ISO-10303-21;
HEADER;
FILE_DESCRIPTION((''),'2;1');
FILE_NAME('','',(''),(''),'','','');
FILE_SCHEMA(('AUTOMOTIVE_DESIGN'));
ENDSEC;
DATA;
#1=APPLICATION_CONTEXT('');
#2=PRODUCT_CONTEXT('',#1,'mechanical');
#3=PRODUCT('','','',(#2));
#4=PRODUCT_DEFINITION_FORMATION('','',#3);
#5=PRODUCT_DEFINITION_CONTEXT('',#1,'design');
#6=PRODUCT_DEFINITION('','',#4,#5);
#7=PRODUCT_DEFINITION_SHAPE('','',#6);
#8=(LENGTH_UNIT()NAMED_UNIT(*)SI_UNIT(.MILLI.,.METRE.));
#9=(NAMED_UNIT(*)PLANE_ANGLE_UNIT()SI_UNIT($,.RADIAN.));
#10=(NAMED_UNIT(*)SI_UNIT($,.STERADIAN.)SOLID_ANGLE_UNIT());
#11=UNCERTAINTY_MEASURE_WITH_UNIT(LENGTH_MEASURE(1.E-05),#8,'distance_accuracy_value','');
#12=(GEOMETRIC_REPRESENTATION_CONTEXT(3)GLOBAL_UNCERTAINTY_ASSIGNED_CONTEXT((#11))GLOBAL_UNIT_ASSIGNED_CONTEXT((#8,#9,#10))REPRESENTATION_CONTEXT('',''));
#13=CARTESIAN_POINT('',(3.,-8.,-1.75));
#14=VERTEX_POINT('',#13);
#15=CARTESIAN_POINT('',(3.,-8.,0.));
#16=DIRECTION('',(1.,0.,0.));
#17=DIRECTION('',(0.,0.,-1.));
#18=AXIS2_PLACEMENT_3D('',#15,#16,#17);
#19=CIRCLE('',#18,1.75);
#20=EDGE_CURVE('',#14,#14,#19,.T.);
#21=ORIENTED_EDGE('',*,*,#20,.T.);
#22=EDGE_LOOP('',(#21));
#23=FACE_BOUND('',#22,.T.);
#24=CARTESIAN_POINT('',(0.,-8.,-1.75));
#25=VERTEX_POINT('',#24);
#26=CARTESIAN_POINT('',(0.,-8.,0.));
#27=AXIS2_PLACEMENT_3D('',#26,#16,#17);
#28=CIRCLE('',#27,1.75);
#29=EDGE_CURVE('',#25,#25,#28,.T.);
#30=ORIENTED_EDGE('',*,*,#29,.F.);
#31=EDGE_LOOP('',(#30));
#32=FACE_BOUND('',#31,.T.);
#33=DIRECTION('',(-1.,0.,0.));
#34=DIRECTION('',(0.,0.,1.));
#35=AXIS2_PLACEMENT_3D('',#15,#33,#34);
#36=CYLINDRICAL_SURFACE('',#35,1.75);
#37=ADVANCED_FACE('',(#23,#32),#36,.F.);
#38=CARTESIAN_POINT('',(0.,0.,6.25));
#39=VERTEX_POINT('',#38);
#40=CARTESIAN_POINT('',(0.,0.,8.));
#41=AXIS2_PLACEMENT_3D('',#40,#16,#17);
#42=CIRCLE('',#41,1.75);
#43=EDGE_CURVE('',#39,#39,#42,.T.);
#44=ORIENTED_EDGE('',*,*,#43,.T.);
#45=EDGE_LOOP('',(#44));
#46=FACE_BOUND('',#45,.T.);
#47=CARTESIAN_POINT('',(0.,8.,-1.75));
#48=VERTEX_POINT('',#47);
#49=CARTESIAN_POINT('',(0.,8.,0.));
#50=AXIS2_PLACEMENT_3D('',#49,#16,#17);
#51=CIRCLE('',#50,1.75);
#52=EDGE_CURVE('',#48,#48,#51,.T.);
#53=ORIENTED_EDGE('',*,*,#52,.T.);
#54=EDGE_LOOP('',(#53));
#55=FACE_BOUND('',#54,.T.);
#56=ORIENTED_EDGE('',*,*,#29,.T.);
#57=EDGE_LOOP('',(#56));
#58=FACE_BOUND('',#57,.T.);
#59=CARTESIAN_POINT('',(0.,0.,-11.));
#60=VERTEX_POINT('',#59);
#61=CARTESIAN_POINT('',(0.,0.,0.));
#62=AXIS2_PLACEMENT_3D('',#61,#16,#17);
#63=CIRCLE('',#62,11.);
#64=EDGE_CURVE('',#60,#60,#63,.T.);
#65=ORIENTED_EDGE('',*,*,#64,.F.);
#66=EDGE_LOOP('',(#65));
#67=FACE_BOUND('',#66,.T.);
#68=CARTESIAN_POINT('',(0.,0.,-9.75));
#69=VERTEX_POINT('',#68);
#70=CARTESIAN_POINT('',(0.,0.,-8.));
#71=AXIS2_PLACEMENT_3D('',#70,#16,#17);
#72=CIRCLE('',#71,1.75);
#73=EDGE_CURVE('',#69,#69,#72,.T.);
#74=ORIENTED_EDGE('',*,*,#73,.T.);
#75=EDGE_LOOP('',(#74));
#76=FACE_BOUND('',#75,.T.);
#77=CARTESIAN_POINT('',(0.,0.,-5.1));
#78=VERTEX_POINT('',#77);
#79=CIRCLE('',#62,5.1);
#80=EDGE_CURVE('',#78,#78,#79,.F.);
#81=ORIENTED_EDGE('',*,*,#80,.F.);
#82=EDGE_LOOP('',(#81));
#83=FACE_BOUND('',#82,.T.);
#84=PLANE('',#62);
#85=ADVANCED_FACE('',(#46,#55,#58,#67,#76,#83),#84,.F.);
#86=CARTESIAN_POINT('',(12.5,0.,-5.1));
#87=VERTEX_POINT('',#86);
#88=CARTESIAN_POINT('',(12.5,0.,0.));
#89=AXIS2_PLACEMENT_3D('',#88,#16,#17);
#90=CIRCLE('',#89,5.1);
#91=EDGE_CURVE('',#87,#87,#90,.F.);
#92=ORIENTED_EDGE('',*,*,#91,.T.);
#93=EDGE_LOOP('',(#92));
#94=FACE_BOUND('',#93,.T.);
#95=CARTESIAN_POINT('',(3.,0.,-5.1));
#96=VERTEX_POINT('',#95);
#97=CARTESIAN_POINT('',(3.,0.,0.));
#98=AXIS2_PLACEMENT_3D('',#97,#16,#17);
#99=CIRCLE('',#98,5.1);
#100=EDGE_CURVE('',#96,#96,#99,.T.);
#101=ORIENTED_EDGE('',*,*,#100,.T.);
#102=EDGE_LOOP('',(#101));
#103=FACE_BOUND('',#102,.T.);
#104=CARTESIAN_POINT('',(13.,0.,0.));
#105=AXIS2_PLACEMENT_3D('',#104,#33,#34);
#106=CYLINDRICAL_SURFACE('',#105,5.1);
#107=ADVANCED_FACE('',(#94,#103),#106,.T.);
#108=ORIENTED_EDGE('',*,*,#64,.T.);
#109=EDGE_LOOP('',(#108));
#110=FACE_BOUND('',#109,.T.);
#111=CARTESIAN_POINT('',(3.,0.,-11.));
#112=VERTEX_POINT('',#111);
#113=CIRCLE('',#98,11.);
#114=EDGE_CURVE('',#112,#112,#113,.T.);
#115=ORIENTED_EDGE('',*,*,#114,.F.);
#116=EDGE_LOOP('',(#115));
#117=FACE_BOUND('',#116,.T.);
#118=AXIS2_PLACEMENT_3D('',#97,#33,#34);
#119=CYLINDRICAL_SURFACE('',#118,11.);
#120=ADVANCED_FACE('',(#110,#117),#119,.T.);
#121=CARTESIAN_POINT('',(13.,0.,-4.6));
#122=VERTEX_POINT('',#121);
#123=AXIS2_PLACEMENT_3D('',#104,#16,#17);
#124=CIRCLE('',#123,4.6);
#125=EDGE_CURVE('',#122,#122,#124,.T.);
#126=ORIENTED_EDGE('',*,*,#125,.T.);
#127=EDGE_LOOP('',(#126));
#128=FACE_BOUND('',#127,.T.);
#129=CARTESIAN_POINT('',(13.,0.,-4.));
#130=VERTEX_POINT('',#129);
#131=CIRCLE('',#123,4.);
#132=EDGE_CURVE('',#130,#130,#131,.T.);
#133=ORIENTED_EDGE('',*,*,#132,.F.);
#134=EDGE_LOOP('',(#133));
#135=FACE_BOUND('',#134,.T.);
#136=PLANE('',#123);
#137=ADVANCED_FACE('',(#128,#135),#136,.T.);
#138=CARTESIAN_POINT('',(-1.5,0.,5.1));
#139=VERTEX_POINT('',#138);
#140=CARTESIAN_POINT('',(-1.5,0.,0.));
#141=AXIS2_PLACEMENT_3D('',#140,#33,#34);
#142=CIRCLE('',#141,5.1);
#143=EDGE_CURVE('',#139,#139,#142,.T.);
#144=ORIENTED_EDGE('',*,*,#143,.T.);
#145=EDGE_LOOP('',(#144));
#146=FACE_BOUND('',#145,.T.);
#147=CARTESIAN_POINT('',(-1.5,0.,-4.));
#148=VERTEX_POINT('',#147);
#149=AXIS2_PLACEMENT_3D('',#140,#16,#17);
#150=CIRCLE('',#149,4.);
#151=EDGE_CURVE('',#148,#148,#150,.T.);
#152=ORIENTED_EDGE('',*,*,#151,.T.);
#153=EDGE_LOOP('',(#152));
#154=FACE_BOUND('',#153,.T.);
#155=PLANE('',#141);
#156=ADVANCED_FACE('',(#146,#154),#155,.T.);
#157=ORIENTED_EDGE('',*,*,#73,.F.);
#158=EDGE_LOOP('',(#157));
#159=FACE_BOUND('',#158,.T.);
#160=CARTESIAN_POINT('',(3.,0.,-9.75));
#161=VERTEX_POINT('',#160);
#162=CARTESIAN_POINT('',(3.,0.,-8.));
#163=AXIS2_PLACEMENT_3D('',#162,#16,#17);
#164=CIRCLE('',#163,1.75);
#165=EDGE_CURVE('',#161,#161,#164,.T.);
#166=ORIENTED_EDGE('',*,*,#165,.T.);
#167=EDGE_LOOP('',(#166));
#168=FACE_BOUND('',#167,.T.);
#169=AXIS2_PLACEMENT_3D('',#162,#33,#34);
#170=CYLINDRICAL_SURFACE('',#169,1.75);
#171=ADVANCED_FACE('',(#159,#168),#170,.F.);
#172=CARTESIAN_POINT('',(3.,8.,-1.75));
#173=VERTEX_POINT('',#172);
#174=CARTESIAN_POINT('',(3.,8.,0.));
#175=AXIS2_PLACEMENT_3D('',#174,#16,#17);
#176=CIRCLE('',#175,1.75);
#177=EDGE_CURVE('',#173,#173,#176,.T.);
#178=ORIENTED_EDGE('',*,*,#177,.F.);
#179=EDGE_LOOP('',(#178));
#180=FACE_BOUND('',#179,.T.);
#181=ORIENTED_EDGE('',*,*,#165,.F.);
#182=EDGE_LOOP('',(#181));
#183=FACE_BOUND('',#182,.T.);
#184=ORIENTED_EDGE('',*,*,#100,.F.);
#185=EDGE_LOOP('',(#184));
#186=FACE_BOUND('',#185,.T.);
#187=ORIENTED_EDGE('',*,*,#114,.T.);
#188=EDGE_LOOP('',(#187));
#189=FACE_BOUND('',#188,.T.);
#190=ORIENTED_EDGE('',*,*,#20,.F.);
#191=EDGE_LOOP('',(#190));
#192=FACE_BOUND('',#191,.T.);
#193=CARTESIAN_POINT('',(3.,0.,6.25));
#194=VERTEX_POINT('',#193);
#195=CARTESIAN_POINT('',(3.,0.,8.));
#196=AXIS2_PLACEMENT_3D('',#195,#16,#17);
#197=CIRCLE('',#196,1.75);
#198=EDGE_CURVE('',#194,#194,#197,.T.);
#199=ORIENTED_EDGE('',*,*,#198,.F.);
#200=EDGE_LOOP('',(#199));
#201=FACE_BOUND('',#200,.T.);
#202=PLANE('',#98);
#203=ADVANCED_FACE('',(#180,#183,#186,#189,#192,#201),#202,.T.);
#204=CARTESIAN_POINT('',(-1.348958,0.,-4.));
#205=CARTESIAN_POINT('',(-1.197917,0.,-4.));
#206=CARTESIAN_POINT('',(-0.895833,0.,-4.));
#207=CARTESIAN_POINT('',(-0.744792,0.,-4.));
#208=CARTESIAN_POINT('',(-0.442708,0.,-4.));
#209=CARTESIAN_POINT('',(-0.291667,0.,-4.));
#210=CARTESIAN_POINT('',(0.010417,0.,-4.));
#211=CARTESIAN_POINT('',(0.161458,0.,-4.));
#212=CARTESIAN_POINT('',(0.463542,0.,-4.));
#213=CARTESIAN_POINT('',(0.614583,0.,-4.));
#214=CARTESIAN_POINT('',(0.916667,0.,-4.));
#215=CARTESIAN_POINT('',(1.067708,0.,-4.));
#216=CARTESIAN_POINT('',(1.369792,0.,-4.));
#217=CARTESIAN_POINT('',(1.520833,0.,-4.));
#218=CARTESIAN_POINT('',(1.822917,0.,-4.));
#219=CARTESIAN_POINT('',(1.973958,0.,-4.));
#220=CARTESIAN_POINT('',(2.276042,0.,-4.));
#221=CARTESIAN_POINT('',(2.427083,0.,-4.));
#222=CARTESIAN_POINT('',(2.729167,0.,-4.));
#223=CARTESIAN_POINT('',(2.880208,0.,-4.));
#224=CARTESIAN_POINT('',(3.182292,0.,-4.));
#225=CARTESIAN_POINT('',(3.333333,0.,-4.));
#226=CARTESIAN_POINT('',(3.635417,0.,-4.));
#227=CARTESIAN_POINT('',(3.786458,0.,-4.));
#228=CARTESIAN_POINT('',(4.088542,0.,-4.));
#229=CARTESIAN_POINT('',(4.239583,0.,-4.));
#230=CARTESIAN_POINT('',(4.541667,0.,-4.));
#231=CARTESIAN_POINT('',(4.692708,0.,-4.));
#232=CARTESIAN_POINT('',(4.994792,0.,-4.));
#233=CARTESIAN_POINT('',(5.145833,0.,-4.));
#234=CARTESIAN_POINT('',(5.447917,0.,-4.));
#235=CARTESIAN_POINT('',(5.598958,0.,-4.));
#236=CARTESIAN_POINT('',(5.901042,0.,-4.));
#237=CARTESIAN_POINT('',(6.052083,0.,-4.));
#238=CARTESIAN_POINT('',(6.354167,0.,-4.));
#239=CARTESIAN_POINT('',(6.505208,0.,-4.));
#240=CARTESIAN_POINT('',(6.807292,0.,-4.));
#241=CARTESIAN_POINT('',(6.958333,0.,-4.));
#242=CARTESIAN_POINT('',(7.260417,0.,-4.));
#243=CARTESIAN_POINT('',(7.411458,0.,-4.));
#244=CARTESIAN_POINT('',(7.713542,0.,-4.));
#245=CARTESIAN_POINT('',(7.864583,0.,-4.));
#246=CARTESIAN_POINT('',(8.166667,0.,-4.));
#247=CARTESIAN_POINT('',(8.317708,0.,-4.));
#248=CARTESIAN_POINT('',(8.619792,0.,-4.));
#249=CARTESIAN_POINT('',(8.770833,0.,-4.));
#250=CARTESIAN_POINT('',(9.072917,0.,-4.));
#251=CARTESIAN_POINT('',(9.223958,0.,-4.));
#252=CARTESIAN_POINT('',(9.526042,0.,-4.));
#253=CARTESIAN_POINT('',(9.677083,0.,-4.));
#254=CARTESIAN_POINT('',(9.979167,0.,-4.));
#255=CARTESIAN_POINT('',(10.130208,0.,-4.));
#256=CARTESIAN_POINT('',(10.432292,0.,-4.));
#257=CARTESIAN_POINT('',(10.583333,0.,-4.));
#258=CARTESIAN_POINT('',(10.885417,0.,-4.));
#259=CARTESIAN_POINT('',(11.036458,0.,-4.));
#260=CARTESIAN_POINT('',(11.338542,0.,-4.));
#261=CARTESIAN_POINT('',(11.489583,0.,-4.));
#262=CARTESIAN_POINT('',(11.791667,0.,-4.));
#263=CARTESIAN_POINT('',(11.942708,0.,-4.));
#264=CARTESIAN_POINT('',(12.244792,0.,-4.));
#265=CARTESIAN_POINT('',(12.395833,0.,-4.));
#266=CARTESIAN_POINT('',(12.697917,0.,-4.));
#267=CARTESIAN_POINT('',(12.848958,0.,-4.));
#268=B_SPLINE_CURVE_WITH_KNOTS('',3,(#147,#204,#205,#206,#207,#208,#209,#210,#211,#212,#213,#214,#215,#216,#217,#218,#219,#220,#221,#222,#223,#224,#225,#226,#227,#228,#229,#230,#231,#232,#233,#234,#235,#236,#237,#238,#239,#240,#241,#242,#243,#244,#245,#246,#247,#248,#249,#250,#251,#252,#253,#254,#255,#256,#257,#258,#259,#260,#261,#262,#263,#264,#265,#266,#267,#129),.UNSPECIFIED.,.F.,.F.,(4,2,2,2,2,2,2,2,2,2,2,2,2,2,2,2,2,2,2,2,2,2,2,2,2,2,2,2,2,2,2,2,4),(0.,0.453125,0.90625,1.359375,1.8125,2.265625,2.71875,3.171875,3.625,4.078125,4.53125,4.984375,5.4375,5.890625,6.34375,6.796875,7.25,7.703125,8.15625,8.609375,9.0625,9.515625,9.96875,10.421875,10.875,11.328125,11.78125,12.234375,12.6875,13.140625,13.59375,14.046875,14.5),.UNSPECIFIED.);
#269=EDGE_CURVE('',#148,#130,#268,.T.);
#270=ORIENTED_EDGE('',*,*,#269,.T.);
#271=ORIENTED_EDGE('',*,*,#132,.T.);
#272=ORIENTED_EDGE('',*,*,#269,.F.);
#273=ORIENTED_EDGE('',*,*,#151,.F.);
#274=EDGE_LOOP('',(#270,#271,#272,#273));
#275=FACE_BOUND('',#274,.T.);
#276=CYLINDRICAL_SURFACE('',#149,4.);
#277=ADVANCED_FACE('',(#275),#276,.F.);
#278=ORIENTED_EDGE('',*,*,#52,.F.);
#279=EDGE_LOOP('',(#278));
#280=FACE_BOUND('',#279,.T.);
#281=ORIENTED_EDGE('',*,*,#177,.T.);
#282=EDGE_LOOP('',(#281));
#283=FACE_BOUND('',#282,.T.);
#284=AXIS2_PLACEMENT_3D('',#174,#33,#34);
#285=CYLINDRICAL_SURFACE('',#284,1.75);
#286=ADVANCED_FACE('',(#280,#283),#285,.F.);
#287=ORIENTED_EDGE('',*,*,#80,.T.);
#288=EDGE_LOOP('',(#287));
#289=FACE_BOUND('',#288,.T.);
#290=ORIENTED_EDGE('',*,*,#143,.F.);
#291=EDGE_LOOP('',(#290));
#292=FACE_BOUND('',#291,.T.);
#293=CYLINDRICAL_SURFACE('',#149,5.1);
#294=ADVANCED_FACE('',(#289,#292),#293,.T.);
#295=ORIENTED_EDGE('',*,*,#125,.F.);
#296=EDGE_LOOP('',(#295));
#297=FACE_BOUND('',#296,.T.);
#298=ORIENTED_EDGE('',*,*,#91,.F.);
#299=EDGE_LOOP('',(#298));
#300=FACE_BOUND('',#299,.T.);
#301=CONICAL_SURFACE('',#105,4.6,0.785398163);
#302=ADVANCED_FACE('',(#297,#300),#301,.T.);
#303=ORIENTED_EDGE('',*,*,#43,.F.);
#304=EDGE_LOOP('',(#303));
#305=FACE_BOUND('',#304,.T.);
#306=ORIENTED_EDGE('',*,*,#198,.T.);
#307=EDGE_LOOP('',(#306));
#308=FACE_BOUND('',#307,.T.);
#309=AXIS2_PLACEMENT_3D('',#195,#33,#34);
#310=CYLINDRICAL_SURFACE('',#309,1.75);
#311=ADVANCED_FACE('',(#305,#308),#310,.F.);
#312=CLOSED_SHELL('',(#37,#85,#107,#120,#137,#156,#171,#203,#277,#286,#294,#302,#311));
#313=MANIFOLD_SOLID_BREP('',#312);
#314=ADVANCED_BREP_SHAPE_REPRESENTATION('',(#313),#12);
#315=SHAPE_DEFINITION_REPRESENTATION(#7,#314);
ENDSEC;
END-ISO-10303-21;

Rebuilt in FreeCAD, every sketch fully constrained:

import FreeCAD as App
import Part
import Sketcher

V = App.Vector


def edges_at(feature, points):
    """Names of the edges that pass closest to the given points."""
    edges = feature.Shape.Edges
    near = lambda p: min(range(len(edges)), key=lambda i: edges[i].distToShape(Part.Vertex(*p))[0])
    return sorted({f"Edge{near(p) + 1}" for p in points})

doc = App.newDocument("Part")
body = doc.addObject("PartDesign::Body", "Body")

sketch1 = body.newObject("Sketcher::SketchObject", "Sketch")
sketch1.AttachmentSupport = (doc.getObject("YZ_Plane"), [""])
sketch1.MapMode = "FlatFace"
sketch1.addGeometry(Part.Circle(V(0, 0, 0), V(0, 0, 1), 11), False)
sketch1.addGeometry(Part.Circle(V(-8, 0, 0), V(0, 0, 1), 1.8), False)
sketch1.addGeometry(Part.Circle(V(0, 8, 0), V(0, 0, 1), 1.8), False)
sketch1.addGeometry(Part.Circle(V(0, -8, 0), V(0, 0, 1), 1.8), False)
sketch1.addGeometry(Part.Circle(V(8, 0, 0), V(0, 0, 1), 1.8), False)
sketch1.addConstraint(Sketcher.Constraint("Coincident", 0, 3, -1, 1))
sketch1.addConstraint(Sketcher.Constraint("Equal", 1, 2))
sketch1.addConstraint(Sketcher.Constraint("Equal", 2, 3))
sketch1.addConstraint(Sketcher.Constraint("Equal", 3, 4))
sketch1.addConstraint(Sketcher.Constraint("Symmetric", 2, 3, 3, 3, -1, 1))
sketch1.addConstraint(Sketcher.Constraint("Symmetric", 1, 3, 4, 3, -1, 1))
sketch1.addConstraint(Sketcher.Constraint("PointOnObject", 1, 3, -1))
sketch1.addConstraint(Sketcher.Constraint("PointOnObject", 2, 3, -2))
sketch1.addConstraint(Sketcher.Constraint("Diameter", 0, 22.0))
sketch1.addConstraint(Sketcher.Constraint("Diameter", 1, 3.5))
sketch1.addConstraint(Sketcher.Constraint("DistanceX", 1, 3, -1, 1, 8.0))
sketch1.addConstraint(Sketcher.Constraint("DistanceY", -1, 1, 2, 3, 8.0))
pad1 = body.newObject("PartDesign::Pad", "Pad")
pad1.Profile = sketch1
pad1.Length = 3

sketch2 = body.newObject("Sketcher::SketchObject", "Sketch001")
sketch2.AttachmentSupport = (doc.getObject("YZ_Plane"), [""])
sketch2.MapMode = "FlatFace"
sketch2.AttachmentOffset = App.Placement(V(0, 0, 3), App.Rotation())
sketch2.addGeometry(Part.Circle(V(0, 0, 0), V(0, 0, 1), 5), False)
sketch2.addConstraint(Sketcher.Constraint("Coincident", 0, 3, -1, 1))
sketch2.addConstraint(Sketcher.Constraint("Diameter", 0, 10.2))
pad2 = body.newObject("PartDesign::Pad", "Pad001")
pad2.Profile = sketch2
pad2.Length = 10
doc.recompute()

chamfer = body.newObject("PartDesign::Chamfer", "Chamfer")
chamfer.Base = (pad2, edges_at(pad2, [(13, 0, 5.1)]))
chamfer.Size = 0.5

sketch3 = body.newObject("Sketcher::SketchObject", "Sketch002")
sketch3.AttachmentSupport = (doc.getObject("YZ_Plane"), [""])
sketch3.MapMode = "FlatFace"
sketch3.AttachmentOffset = App.Placement(V(0, 0, -1.5), App.Rotation())
sketch3.addGeometry(Part.Circle(V(0, 0, 0), V(0, 0, 1), 5), False)
sketch3.addConstraint(Sketcher.Constraint("Coincident", 0, 3, -1, 1))
sketch3.addConstraint(Sketcher.Constraint("Diameter", 0, 10.2))
pad3 = body.newObject("PartDesign::Pad", "Pad002")
pad3.Profile = sketch3
pad3.Length = 1.5

sketch4 = body.newObject("Sketcher::SketchObject", "Sketch003")
sketch4.AttachmentSupport = (doc.getObject("YZ_Plane"), [""])
sketch4.MapMode = "FlatFace"
sketch4.AttachmentOffset = App.Placement(V(0, 0, 13), App.Rotation())
sketch4.addGeometry(Part.Circle(V(0, 0, 0), V(0, 0, 1), 4), False)
sketch4.addConstraint(Sketcher.Constraint("Coincident", 0, 3, -1, 1))
sketch4.addConstraint(Sketcher.Constraint("Diameter", 0, 8.0))
pocket1 = body.newObject("PartDesign::Pocket", "Pocket")
pocket1.Profile = sketch4
pocket1.Type = "ThroughAll"

doc.recompute()
